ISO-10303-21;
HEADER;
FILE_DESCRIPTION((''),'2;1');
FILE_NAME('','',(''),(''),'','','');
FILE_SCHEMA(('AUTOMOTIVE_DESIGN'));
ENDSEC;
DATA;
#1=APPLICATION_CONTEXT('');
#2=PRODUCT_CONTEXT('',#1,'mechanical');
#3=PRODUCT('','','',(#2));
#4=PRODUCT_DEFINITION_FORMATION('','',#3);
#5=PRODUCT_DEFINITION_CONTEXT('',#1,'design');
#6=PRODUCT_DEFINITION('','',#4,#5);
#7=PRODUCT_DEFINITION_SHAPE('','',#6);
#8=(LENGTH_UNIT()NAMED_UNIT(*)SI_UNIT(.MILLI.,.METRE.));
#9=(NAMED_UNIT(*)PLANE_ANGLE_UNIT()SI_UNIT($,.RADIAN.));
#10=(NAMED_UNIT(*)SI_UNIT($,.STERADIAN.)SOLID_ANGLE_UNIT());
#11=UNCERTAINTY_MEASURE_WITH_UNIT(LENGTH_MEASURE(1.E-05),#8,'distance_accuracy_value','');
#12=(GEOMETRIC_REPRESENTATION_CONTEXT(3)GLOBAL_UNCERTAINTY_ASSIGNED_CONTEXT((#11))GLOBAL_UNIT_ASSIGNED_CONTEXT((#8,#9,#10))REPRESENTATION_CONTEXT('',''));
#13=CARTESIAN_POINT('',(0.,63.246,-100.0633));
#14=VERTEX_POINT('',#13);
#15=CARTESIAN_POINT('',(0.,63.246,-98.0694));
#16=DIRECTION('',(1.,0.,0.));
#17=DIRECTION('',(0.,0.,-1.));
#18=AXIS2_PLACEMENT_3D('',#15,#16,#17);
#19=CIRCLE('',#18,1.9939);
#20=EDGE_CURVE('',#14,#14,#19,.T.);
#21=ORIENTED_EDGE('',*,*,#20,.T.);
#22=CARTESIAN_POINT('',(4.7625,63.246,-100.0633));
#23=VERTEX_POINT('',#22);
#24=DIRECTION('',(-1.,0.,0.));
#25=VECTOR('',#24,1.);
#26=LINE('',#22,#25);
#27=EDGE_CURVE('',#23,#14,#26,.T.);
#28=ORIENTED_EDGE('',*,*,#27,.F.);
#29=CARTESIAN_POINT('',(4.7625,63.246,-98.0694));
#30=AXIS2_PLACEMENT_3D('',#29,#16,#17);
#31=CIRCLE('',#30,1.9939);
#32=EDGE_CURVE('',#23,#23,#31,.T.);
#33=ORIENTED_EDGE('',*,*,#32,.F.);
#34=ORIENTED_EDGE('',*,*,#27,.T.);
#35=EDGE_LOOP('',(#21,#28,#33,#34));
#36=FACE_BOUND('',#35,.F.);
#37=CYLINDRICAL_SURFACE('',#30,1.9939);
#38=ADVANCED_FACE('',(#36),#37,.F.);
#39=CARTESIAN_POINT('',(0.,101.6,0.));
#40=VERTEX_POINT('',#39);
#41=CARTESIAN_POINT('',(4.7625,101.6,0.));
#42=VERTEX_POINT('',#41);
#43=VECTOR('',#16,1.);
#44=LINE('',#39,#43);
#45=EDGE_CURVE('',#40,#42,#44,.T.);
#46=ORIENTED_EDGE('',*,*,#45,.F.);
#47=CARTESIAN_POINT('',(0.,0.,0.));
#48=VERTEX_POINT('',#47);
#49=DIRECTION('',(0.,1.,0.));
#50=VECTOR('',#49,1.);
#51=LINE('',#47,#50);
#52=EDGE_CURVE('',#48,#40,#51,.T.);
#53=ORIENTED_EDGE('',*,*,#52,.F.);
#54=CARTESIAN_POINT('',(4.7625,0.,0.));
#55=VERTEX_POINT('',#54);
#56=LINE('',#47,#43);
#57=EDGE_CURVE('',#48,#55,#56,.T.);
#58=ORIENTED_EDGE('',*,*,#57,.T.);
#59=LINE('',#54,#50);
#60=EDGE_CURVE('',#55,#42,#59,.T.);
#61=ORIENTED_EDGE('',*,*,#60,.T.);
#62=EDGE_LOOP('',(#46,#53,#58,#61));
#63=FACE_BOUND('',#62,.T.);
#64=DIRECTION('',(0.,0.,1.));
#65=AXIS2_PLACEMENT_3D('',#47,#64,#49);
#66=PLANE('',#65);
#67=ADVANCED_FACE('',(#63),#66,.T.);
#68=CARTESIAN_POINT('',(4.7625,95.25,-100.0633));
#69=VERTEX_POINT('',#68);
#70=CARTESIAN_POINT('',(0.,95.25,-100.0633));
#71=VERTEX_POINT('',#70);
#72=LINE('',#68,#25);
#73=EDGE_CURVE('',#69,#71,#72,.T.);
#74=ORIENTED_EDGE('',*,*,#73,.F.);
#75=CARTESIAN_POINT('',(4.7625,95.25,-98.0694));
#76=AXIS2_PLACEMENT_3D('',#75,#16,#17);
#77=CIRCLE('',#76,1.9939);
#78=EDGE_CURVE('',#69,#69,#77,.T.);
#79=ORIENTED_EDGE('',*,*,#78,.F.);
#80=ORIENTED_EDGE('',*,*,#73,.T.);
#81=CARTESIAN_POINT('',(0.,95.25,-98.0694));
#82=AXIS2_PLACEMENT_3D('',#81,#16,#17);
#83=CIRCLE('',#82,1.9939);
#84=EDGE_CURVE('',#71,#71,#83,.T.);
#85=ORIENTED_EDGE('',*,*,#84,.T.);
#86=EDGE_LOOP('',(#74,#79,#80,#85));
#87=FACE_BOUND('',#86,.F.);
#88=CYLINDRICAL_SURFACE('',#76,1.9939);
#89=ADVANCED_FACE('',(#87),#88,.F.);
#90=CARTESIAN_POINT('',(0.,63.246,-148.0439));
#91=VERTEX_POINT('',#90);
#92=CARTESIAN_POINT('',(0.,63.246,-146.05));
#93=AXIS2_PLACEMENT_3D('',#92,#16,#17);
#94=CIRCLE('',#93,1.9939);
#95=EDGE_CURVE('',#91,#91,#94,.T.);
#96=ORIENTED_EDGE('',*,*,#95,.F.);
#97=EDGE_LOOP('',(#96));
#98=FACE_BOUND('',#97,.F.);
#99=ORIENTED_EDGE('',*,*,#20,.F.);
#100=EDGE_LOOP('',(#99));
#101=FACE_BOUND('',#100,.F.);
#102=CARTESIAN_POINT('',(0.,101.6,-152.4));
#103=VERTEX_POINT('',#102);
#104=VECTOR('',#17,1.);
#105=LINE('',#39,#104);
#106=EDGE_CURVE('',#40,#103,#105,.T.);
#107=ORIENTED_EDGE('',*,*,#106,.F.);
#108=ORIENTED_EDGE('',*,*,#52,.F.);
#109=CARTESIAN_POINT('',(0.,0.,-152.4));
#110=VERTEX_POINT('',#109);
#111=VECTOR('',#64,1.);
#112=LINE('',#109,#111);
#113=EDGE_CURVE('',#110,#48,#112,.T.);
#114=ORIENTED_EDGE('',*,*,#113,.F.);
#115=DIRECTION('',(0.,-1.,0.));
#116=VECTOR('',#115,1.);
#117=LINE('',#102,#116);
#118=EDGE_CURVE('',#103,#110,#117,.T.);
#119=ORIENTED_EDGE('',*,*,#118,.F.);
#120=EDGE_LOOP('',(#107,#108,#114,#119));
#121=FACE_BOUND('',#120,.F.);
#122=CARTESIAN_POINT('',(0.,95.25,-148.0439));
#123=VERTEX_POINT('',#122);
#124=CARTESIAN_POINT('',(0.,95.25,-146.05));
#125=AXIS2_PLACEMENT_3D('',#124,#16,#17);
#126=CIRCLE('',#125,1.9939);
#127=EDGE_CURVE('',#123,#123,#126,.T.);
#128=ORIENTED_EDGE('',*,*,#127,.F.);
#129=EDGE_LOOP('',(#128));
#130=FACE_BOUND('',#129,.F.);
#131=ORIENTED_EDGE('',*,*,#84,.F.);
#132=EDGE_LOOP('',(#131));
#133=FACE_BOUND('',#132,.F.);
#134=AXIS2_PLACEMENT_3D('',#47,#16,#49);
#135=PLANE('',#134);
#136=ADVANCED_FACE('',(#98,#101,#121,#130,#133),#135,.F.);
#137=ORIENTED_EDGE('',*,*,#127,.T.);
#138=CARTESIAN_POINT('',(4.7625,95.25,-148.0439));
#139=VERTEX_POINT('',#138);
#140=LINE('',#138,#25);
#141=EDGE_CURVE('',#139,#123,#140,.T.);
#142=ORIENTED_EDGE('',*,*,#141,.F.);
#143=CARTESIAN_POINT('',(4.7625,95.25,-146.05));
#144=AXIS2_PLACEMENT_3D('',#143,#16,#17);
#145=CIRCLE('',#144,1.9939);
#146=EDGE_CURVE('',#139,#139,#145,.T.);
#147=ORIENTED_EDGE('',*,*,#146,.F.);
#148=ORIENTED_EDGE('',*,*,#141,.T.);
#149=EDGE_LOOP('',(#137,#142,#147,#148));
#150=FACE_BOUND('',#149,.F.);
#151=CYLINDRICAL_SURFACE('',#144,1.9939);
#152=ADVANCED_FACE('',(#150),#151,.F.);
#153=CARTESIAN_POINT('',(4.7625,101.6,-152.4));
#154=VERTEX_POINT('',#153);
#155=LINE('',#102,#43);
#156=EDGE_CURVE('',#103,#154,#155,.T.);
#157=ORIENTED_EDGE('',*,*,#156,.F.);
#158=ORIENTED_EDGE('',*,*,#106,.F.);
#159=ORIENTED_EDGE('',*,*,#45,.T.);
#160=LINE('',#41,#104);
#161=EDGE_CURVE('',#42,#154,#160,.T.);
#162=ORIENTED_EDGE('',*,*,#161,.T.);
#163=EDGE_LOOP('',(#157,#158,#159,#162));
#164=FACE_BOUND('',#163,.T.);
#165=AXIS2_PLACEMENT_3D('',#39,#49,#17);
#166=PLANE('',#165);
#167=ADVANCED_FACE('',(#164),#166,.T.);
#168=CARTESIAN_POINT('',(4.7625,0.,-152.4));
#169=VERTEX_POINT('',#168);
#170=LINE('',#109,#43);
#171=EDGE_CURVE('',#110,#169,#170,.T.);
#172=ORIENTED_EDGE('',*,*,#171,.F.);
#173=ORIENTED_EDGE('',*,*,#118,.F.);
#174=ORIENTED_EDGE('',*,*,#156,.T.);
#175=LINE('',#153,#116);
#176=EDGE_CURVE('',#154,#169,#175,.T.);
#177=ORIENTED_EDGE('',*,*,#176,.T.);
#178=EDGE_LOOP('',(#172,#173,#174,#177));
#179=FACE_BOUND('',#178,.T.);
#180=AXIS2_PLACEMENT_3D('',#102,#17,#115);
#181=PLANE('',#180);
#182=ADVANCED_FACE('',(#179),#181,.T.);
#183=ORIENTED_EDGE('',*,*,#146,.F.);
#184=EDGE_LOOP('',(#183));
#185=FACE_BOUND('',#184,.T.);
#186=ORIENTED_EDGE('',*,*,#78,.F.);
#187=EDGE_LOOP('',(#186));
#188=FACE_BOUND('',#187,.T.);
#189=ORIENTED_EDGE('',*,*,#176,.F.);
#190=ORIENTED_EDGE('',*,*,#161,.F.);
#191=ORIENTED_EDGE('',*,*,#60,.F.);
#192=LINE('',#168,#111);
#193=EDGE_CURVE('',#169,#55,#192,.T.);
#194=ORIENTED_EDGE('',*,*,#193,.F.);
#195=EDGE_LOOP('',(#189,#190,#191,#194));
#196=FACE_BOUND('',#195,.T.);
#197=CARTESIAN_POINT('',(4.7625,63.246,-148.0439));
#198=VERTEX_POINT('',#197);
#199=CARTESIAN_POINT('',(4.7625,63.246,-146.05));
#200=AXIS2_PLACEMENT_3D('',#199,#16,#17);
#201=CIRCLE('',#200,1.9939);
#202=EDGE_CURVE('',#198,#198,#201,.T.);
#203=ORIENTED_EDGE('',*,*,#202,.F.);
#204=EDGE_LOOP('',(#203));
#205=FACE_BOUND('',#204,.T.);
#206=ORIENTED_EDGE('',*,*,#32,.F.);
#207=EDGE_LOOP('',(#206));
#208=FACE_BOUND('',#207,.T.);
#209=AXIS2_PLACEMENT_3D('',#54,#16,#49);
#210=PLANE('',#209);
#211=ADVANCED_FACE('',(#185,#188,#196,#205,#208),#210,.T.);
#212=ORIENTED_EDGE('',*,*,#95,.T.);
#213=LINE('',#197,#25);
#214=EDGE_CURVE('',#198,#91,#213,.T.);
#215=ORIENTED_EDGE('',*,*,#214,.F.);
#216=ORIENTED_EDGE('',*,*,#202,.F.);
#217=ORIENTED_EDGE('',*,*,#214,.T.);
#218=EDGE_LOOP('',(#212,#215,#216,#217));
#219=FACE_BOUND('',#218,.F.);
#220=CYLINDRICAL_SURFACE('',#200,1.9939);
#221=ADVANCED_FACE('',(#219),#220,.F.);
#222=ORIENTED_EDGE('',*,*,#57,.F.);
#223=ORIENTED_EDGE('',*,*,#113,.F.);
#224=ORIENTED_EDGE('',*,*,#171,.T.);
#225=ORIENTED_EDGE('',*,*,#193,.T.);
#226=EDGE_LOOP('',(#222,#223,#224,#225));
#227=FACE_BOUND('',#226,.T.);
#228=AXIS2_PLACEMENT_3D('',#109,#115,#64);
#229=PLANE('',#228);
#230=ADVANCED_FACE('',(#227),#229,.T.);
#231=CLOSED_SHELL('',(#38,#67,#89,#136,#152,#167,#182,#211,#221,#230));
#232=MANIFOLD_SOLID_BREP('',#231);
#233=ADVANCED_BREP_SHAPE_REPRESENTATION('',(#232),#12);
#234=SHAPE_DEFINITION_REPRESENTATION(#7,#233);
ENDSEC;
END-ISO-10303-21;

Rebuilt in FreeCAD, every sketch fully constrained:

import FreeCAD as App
import Part
import Sketcher
from FreeCAD import Vector
Q = App.Units.Quantity

doc = App.newDocument("Part")
body = doc.addObject("PartDesign::Body", "Body")

# Sketch on YZ plane
sketch1 = body.newObject("Sketcher::SketchObject", "Sketch")
sketch1.AttachmentSupport = (doc.getObject("YZ_Plane"), [""])
sketch1.MapMode = "FlatFace"
sketch1.addGeometry(Part.LineSegment(Vector(102, 0, 0), Vector(0, 0, 0)), False)
sketch1.addGeometry(Part.LineSegment(Vector(0, 0, 0), Vector(0, -152, 0)), False)
sketch1.addGeometry(Part.LineSegment(Vector(0, -152, 0), Vector(102, -152, 0)), False)
sketch1.addGeometry(Part.LineSegment(Vector(102, -152, 0), Vector(102, 0, 0)), False)
sketch1.addConstraint(Sketcher.Constraint("Coincident", 0, 2, 1, 1))
sketch1.addConstraint(Sketcher.Constraint("Coincident", 1, 2, 2, 1))
sketch1.addConstraint(Sketcher.Constraint("Coincident", 2, 2, 3, 1))
sketch1.addConstraint(Sketcher.Constraint("Coincident", 3, 2, 0, 1))
sketch1.addConstraint(Sketcher.Constraint("Horizontal", 0))
sketch1.addConstraint(Sketcher.Constraint("Vertical", 1))
sketch1.addConstraint(Sketcher.Constraint("Horizontal", 2))
sketch1.addConstraint(Sketcher.Constraint("Vertical", 3))
sketch1.addConstraint(Sketcher.Constraint("Coincident", 0, 2, -1, 1))
sketch1.addConstraint(Sketcher.Constraint("DistanceX", 0, 2, 0, 1, Q("4 in")))
sketch1.addConstraint(Sketcher.Constraint("DistanceY", 1, 2, 1, 1, Q("6 in")))
pad1 = body.newObject("PartDesign::Pad", "Pad")
pad1.Profile = sketch1
pad1.Length = Q("0.1875 in")

# Sketch on YZ plane
sketch2 = body.newObject("Sketcher::SketchObject", "Sketch001")
sketch2.AttachmentSupport = (doc.getObject("YZ_Plane"), [""])
sketch2.MapMode = "FlatFace"
sketch2.AttachmentOffset = App.Placement(Vector(0, 0, 0.1875 * 25.4), App.Rotation())
sketch2.addGeometry(Part.Circle(Vector(63.2, -146.1, 0), Vector(0, 0, 1), 2), False)
sketch2.addGeometry(Part.Circle(Vector(95.2, -146.1, 0), Vector(0, 0, 1), 2), False)
sketch2.addConstraint(Sketcher.Constraint("Equal", 0, 1))
sketch2.addConstraint(Sketcher.Constraint("Horizontal", 0, 3, 1, 3))
sketch2.addConstraint(Sketcher.Constraint("Diameter", 0, Q("0.157 in")))
sketch2.addConstraint(Sketcher.Constraint("DistanceX", 0, 3, 1, 3, Q("1.26 in")))
sketch2.addConstraint(Sketcher.Constraint("DistanceX", -1, 1, 0, 3, Q("2.49 in")))
sketch2.addConstraint(Sketcher.Constraint("DistanceY", 0, 3, -1, 1, Q("5.75 in")))
pocket1 = body.newObject("PartDesign::Pocket", "Pocket")
pocket1.Profile = sketch2
pocket1.Type = "ThroughAll"

# Sketch on YZ plane
sketch3 = body.newObject("Sketcher::SketchObject", "Sketch002")
sketch3.AttachmentSupport = (doc.getObject("YZ_Plane"), [""])
sketch3.MapMode = "FlatFace"
sketch3.AttachmentOffset = App.Placement(Vector(0, 0, 0.1875 * 25.4), App.Rotation())
sketch3.addGeometry(Part.Circle(Vector(95.2, -98.1, 0), Vector(0, 0, 1), 2), False)
sketch3.addGeometry(Part.Circle(Vector(63.2, -98.1, 0), Vector(0, 0, 1), 2), False)
sketch3.addConstraint(Sketcher.Constraint("Equal", 0, 1))
sketch3.addConstraint(Sketcher.Constraint("Horizontal", 0, 3, 1, 3))
sketch3.addConstraint(Sketcher.Constraint("Diameter", 0, Q("0.157 in")))
sketch3.addConstraint(Sketcher.Constraint("DistanceX", -1, 1, 0, 3, Q("3.75 in")))
sketch3.addConstraint(Sketcher.Constraint("DistanceX", -1, 1, 1, 3, Q("2.49 in")))
sketch3.addConstraint(Sketcher.Constraint("DistanceY", 0, 3, -1, 1, Q("3.861 in")))
pocket2 = body.newObject("PartDesign::Pocket", "Pocket001")
pocket2.Profile = sketch3
pocket2.Type = "ThroughAll"

doc.recompute()
